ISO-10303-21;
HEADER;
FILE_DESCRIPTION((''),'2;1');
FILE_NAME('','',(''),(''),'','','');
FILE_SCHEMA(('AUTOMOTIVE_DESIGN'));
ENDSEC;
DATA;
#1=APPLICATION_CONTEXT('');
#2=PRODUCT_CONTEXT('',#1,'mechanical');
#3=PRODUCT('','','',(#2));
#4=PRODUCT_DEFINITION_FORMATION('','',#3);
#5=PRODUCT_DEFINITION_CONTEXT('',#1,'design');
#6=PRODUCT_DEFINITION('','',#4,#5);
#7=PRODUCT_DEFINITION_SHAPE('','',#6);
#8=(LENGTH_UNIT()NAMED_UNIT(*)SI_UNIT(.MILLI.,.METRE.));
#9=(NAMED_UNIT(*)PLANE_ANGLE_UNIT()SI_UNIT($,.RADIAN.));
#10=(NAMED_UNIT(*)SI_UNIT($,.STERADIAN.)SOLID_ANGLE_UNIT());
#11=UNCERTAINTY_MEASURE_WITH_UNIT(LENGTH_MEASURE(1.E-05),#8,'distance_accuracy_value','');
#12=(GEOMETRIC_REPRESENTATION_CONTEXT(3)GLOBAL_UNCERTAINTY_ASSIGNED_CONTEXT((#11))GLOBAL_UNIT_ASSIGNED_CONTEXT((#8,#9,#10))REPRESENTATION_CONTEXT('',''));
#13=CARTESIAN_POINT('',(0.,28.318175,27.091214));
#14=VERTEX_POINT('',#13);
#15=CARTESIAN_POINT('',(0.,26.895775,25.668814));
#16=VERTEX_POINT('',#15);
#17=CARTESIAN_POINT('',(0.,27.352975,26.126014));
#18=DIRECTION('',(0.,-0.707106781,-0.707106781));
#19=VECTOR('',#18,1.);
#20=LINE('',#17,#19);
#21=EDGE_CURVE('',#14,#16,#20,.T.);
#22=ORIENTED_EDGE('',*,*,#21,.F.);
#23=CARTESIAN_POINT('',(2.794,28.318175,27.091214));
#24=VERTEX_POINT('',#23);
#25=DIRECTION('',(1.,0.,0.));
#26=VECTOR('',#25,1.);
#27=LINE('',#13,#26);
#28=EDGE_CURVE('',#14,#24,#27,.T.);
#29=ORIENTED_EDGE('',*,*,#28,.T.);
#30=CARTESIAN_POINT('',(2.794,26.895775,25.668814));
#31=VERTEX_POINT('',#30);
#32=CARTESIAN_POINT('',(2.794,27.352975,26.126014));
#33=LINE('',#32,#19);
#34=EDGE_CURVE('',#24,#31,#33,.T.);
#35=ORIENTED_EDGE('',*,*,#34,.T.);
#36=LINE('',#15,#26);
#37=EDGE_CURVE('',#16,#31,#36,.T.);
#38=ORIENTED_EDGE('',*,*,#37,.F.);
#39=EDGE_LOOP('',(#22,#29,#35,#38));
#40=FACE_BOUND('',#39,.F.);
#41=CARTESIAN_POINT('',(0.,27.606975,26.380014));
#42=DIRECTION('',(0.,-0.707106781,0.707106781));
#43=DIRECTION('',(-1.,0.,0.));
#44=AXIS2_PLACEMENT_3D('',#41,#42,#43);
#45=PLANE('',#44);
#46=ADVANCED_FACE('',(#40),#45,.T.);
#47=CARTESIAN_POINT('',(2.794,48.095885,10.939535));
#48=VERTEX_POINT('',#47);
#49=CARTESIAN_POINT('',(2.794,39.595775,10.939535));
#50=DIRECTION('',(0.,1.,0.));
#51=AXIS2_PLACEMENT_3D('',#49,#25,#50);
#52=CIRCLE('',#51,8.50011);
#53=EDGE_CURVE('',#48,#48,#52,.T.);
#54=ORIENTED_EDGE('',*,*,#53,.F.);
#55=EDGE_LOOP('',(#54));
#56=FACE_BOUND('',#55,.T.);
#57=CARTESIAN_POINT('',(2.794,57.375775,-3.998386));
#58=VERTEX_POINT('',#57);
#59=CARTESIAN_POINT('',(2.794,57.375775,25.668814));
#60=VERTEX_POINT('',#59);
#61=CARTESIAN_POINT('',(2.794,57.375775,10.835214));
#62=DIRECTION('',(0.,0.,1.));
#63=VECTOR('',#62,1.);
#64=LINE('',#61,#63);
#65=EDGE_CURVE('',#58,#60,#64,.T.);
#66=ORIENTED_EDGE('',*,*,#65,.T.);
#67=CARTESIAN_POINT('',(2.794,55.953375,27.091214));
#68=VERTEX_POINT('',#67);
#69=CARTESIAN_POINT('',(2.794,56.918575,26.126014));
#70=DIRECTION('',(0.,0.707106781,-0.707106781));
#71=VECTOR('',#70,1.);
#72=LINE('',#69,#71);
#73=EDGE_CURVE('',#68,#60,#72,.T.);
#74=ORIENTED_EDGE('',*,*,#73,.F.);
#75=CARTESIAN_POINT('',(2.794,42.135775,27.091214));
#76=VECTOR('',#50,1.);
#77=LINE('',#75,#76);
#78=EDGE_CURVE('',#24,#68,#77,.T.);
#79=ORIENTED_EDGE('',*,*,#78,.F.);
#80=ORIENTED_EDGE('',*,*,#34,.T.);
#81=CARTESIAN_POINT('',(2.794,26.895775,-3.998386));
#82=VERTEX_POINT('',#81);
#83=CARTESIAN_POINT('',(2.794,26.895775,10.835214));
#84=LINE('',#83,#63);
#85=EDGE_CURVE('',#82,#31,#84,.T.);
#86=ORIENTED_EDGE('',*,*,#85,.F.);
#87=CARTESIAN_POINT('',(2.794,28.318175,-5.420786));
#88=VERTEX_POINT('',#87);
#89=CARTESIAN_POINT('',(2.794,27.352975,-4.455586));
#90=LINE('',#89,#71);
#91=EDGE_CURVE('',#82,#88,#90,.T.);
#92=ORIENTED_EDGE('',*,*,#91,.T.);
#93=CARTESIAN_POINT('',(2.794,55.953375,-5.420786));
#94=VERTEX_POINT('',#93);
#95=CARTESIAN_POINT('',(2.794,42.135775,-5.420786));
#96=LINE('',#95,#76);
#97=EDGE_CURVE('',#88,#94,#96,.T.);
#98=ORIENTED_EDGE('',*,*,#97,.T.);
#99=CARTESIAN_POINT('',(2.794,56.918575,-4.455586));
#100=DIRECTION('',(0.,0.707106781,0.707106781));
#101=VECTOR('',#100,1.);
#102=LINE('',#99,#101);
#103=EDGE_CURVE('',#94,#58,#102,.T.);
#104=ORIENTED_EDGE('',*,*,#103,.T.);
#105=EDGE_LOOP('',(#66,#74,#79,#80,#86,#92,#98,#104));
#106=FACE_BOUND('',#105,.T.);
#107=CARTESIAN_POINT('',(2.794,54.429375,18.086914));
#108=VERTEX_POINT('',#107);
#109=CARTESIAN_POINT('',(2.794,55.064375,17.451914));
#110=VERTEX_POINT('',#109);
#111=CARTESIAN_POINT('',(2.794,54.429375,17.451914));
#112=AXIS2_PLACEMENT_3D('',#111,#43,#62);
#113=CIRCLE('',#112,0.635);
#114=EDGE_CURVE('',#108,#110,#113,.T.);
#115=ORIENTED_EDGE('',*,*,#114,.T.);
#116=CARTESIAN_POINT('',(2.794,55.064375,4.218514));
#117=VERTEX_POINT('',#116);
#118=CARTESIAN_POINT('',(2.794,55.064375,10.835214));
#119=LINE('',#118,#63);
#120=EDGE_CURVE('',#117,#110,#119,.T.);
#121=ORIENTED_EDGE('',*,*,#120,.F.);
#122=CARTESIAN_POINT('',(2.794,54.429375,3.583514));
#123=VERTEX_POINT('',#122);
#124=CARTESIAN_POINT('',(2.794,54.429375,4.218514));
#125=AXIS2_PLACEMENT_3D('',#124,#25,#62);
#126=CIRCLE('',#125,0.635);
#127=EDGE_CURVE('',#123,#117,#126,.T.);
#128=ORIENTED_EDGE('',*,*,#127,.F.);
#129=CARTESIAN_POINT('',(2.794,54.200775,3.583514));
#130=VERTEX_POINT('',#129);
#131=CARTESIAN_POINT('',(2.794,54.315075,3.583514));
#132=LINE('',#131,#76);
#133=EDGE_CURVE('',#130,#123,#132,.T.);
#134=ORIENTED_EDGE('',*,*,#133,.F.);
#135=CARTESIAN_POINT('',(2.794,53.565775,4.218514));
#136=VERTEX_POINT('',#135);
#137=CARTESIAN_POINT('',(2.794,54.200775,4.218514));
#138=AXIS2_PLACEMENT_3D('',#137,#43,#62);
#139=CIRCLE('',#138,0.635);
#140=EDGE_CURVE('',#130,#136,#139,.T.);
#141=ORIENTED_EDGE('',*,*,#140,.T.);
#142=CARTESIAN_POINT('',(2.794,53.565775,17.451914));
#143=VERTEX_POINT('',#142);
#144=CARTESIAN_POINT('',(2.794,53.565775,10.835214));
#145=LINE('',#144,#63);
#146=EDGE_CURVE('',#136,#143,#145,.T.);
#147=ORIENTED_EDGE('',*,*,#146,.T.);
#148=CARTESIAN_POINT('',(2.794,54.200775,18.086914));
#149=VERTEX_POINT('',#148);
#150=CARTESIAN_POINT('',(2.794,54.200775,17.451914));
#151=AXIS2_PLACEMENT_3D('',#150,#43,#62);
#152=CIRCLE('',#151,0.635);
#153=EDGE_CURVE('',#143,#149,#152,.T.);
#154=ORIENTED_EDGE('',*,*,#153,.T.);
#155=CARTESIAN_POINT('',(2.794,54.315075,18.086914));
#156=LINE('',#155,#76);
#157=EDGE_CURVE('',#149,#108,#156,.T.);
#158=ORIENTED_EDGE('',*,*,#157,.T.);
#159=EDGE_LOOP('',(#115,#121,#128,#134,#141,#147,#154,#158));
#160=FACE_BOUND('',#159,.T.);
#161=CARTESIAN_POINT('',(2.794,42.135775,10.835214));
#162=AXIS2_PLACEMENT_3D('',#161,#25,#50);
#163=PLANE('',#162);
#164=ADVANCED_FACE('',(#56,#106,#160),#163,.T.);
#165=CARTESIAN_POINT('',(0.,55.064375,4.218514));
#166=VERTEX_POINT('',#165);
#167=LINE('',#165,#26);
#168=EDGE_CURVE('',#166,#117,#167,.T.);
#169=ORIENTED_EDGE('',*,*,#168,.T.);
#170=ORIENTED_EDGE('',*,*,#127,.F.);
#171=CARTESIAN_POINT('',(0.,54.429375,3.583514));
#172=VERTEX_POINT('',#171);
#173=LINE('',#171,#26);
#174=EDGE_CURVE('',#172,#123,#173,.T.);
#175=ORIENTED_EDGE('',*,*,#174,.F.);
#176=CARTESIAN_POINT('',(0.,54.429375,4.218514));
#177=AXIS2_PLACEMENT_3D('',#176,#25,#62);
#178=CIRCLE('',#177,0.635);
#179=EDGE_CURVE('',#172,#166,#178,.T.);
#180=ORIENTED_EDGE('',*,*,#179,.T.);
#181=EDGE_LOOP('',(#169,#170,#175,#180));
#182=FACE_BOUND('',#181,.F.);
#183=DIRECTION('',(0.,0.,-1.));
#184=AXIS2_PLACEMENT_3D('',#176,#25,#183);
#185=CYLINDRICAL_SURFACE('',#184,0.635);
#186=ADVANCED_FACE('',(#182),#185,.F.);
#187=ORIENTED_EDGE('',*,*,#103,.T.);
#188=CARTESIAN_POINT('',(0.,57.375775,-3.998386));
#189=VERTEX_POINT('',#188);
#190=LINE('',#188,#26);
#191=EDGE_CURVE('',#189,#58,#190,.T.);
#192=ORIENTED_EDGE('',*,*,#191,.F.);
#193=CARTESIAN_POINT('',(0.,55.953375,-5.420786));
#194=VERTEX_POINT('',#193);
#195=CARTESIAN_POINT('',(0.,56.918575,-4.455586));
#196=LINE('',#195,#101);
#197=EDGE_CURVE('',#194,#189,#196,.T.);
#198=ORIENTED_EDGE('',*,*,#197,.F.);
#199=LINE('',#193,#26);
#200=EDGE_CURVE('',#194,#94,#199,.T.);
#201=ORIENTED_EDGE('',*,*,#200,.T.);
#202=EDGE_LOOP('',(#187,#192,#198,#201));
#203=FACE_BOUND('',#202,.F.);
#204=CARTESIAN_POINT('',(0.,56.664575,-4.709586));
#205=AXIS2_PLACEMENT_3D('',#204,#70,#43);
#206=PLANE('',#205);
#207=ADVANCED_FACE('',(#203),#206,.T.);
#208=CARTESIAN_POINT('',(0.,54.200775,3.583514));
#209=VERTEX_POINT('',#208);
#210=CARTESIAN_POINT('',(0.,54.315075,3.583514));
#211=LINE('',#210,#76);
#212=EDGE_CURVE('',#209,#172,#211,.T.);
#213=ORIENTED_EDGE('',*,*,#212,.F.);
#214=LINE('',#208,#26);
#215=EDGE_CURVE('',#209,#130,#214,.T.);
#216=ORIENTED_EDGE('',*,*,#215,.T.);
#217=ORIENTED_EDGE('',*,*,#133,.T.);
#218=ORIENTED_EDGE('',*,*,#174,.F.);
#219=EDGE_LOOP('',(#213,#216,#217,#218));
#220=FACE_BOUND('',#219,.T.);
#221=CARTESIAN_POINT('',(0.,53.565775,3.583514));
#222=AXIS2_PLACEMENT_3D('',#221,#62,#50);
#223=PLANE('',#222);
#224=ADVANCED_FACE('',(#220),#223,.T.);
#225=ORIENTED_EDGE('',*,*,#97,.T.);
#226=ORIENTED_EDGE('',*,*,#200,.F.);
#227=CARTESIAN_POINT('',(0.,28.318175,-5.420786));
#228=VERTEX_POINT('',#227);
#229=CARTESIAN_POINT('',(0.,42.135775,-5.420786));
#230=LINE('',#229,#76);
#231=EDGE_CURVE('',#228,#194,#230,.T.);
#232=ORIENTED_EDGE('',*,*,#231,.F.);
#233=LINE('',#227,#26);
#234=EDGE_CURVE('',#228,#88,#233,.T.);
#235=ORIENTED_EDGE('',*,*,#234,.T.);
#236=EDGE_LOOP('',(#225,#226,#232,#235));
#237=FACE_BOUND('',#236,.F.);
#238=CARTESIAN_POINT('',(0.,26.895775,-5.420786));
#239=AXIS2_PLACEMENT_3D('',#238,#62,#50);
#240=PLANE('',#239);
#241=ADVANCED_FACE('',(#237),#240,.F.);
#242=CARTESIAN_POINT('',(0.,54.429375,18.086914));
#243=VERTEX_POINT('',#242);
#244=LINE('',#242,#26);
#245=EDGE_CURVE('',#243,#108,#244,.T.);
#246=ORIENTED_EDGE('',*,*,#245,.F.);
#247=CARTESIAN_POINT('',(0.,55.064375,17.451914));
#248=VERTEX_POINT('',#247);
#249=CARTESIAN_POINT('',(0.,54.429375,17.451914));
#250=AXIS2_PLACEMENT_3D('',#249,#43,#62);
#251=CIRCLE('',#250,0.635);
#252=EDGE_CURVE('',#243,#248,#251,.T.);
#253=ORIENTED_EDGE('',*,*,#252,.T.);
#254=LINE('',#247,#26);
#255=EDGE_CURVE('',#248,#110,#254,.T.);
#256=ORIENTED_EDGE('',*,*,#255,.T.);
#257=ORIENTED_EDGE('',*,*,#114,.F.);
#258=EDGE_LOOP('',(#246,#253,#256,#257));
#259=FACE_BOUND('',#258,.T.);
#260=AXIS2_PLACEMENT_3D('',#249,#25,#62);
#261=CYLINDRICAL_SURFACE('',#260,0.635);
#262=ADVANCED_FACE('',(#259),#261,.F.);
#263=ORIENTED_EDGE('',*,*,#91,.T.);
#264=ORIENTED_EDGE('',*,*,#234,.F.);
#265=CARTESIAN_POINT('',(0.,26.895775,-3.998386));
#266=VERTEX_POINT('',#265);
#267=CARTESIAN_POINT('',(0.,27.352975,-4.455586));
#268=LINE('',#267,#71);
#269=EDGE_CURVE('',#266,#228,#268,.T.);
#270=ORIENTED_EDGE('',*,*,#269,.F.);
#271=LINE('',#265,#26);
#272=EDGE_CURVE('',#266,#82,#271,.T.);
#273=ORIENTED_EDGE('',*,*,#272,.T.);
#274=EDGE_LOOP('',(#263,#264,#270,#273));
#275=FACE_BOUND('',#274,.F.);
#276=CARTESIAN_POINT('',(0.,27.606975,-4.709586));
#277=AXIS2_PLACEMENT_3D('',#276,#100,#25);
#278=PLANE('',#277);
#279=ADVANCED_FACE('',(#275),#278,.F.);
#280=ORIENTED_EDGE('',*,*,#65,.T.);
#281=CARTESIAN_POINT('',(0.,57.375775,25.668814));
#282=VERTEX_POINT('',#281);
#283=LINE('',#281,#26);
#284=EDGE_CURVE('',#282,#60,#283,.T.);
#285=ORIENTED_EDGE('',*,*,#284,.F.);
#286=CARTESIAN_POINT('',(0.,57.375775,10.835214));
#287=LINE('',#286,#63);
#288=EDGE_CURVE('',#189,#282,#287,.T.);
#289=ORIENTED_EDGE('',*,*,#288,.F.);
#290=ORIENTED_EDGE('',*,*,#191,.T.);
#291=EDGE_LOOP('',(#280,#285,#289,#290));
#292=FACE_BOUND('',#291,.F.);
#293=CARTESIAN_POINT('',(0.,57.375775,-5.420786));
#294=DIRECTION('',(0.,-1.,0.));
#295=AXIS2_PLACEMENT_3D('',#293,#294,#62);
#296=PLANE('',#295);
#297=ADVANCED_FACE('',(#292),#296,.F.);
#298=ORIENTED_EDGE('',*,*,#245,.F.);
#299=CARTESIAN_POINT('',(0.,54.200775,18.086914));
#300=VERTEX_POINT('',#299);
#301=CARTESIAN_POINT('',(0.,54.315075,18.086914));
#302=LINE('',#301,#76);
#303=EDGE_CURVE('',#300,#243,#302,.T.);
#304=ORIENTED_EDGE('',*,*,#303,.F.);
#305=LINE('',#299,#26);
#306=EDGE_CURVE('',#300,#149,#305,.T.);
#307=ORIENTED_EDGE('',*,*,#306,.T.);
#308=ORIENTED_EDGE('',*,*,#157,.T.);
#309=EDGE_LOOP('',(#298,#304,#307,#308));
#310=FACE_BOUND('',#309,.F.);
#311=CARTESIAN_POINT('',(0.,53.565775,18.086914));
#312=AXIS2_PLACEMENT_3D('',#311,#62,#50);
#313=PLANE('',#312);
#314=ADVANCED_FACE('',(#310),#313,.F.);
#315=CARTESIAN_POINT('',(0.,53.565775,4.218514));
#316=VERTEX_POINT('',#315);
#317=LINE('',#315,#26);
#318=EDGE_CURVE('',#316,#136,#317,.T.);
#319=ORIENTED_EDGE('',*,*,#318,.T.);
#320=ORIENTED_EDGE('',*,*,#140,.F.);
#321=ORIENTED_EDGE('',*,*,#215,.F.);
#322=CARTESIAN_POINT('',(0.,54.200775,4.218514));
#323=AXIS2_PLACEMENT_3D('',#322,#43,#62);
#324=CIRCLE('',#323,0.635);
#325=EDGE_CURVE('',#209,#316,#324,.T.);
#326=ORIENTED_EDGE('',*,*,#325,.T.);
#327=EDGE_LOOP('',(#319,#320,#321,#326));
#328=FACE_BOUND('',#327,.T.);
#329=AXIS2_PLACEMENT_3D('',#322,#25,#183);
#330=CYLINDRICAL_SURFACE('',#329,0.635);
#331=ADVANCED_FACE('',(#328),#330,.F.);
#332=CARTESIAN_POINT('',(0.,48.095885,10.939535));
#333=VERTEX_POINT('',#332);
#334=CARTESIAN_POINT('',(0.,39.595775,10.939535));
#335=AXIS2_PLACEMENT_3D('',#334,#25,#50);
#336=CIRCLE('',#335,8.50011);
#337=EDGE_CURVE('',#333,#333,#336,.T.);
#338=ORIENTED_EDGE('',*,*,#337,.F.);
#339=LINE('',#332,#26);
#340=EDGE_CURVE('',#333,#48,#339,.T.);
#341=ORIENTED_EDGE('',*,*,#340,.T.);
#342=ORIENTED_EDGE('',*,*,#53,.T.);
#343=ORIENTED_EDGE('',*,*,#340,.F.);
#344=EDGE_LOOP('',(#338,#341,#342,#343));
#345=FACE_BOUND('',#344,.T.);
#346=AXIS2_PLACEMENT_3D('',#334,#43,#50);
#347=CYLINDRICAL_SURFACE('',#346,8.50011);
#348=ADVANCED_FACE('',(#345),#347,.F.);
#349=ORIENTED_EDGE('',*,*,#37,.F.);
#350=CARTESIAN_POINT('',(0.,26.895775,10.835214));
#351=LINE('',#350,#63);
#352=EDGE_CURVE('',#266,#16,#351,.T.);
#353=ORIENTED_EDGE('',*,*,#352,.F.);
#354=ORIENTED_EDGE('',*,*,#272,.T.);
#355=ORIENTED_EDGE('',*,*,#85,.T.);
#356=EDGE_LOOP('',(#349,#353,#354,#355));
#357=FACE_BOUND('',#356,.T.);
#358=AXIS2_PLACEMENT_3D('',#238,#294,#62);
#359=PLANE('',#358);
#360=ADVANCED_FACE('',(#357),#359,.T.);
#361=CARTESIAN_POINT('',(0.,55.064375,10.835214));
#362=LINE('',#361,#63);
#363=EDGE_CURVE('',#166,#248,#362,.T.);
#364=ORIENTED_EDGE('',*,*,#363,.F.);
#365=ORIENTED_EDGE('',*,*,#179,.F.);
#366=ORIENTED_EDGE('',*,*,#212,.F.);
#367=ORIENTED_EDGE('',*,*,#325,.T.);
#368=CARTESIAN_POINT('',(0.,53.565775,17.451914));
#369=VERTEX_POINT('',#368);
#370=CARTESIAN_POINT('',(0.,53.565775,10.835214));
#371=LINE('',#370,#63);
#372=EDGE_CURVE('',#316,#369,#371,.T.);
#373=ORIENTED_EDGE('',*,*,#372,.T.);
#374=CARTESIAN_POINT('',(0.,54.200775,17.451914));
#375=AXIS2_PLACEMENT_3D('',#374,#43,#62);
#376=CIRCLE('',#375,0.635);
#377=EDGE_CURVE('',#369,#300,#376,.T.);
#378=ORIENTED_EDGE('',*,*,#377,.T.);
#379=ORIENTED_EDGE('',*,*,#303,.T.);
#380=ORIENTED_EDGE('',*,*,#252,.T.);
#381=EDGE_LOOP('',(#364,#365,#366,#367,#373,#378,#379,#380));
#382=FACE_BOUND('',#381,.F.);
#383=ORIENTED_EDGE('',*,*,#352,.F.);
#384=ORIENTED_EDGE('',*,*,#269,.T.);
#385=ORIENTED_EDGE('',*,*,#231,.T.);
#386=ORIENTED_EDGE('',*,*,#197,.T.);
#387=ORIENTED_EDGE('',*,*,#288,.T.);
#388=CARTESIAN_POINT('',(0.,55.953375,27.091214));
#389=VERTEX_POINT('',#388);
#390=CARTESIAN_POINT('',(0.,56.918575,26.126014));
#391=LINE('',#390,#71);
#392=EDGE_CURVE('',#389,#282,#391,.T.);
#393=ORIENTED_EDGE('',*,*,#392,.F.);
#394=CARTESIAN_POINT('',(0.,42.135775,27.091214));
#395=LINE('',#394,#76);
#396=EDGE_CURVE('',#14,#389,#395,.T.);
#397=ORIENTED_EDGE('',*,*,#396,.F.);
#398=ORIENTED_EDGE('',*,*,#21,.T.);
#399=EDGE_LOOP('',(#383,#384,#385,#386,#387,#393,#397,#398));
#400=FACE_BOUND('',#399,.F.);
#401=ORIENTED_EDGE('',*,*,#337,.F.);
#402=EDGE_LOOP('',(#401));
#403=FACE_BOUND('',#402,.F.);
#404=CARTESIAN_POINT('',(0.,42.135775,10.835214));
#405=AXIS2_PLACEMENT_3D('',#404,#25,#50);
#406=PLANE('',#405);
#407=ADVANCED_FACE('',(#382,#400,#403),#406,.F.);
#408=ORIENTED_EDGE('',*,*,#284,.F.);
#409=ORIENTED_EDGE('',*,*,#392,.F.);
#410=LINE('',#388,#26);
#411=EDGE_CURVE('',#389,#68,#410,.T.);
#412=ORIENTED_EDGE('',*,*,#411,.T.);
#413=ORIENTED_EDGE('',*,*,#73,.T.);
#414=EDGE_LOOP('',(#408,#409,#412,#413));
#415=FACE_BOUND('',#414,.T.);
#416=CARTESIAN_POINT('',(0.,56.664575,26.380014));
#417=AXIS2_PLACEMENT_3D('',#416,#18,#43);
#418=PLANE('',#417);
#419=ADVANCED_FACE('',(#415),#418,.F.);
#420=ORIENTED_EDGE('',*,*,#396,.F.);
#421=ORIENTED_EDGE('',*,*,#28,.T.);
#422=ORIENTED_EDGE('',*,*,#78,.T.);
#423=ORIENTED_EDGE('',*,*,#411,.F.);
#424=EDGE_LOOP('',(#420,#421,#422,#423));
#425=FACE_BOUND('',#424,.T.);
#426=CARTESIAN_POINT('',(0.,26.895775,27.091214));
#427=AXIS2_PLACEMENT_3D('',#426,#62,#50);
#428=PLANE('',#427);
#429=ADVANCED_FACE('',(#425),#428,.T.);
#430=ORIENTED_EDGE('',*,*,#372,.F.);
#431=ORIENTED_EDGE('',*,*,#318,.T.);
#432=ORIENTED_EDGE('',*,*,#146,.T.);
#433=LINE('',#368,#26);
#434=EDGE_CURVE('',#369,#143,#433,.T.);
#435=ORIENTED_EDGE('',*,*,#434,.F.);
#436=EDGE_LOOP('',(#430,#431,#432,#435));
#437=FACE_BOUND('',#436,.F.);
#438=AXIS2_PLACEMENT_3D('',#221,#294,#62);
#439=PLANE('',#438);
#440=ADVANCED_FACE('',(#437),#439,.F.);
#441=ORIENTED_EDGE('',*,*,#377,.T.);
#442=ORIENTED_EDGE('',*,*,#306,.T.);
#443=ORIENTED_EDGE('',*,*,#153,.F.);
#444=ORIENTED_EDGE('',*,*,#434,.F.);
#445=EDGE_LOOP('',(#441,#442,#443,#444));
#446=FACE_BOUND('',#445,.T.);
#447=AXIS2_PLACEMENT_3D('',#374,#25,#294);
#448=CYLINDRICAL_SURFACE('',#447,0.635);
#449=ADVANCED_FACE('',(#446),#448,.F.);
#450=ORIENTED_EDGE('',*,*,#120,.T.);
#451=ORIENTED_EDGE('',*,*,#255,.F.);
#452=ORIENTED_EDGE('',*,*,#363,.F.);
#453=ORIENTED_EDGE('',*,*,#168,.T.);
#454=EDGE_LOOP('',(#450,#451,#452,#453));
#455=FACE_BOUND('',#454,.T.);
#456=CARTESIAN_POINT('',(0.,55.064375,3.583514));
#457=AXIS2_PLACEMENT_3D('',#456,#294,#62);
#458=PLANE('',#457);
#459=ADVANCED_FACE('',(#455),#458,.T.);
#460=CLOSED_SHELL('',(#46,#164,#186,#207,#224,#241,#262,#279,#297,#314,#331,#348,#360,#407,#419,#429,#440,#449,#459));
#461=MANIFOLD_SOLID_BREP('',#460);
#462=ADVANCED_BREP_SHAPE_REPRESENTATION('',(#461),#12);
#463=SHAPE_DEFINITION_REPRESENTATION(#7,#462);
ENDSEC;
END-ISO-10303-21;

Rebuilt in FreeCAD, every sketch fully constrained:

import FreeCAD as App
import Part
import Sketcher
Q = App.Units.Quantity


def edges_at(feature, points):
    """Names of the edges that pass closest to the given points."""
    edges = feature.Shape.Edges
    near = lambda p: min(range(len(edges)), key=lambda i: edges[i].distToShape(Part.Vertex(*p))[0])
    return sorted({f"Edge{near(p) + 1}" for p in points})


def add_polygon(sketch, points):
    """Adds a closed chain of lines whose ends are joined by coincident constraints."""
    first, n = sketch.GeometryCount, len(points)
    for a, b in zip(points, points[1:] + points[:1]):
        sketch.addGeometry(Part.LineSegment(App.Vector(*a, 0), App.Vector(*b, 0)), False)
    for i in range(n):
        sketch.addConstraint(Sketcher.Constraint("Coincident", first + i, 2, first + (i + 1) % n, 1))

doc = App.newDocument("Part")
body = doc.addObject("PartDesign::Body", "Body")

sketch1 = body.newObject("Sketcher::SketchObject", "Sketch")
sketch1.AttachmentSupport = (doc.getObject("YZ_Plane"), [""])
sketch1.MapMode = "FlatFace"
add_polygon(sketch1, [(26.9, 27.1), (26.9, -5.4), (57.4, -5.4), (57.4, 27.1)])
add_polygon(sketch1, [(55.1, 3.6), (53.6, 3.6), (53.6, 18.1), (55.1, 18.1)])
sketch1.addGeometry(Part.Circle(App.Vector(39.6, 10.9, 0), App.Vector(0, 0, 1), 8.5), False)
sketch1.addConstraint(Sketcher.Constraint("Vertical", 0))
sketch1.addConstraint(Sketcher.Constraint("Horizontal", 1))
sketch1.addConstraint(Sketcher.Constraint("Vertical", 2))
sketch1.addConstraint(Sketcher.Constraint("Horizontal", 3))
sketch1.addConstraint(Sketcher.Constraint("Horizontal", 4))
sketch1.addConstraint(Sketcher.Constraint("Vertical", 5))
sketch1.addConstraint(Sketcher.Constraint("Horizontal", 6))
sketch1.addConstraint(Sketcher.Constraint("Vertical", 7))
sketch1.addConstraint(Sketcher.Constraint("DistanceX", 1, 1, 1, 2, Q("1.2 in")))
sketch1.addConstraint(Sketcher.Constraint("Diameter", 8, Q("0.6693 in")))
sketch1.addConstraint(Sketcher.Constraint("DistanceY", 0, 2, 0, 1, Q("1.28 in")))
sketch1.addConstraint(Sketcher.Constraint("DistanceX", 0, 2, 8, 3, Q("0.5 in")))
sketch1.addConstraint(Sketcher.Constraint("DistanceX", 4, 2, 4, 1, Q("0.059 in")))
sketch1.addConstraint(Sketcher.Constraint("DistanceY", 5, 1, 5, 2, Q("0.571 in")))
sketch1.addConstraint(Sketcher.Constraint("DistanceX", 4, 2, 1, 2, Q("0.15 in")))
sketch1.addConstraint(Sketcher.Constraint("DistanceY", 1, 2, 4, 2, Q("0.3545 in")))
sketch1.addConstraint(Sketcher.Constraint("DistanceY", 0, 2, 8, 3, Q("16.360321 mm")))
sketch1.addConstraint(Sketcher.Constraint("DistanceX", -1, 1, 8, 3, Q("39.595775 mm")))
sketch1.addConstraint(Sketcher.Constraint("DistanceY", -1, 1, 8, 3, Q("10.939535 mm")))
pad1 = body.newObject("PartDesign::Pad", "Pad")
pad1.Profile = sketch1
pad1.Length = Q("0.11 in")
doc.recompute()

chamfer = body.newObject("PartDesign::Chamfer", "Chamfer")
chamfer.Base = (pad1, edges_at(pad1, [(1.397, 57.376, 27.091)]))
chamfer.Size = Q("0.056 in")
doc.recompute()

chamfer2 = body.newObject("PartDesign::Chamfer", "Chamfer001")
chamfer2.Base = (chamfer, edges_at(chamfer, [(1.397, 26.896, 27.091)]))
chamfer2.Size = Q("0.056 in")
doc.recompute()

chamfer3 = body.newObject("PartDesign::Chamfer", "Chamfer002")
chamfer3.Base = (chamfer2, edges_at(chamfer2, [(1.397, 26.896, -5.421)]))
chamfer3.Size = Q("0.056 in")
doc.recompute()

chamfer4 = body.newObject("PartDesign::Chamfer", "Chamfer003")
chamfer4.Base = (chamfer3, edges_at(chamfer3, [(1.397, 57.376, -5.421)]))
chamfer4.Size = Q("0.056 in")
doc.recompute()

fillet = body.newObject("PartDesign::Fillet", "Fillet")
fillet.Base = (chamfer4, edges_at(chamfer4, [(1.397, 53.566, 3.584)]))
fillet.Radius = Q("0.025 in")
doc.recompute()

fillet2 = body.newObject("PartDesign::Fillet", "Fillet001")
fillet2.Base = (fillet, edges_at(fillet, [(1.397, 55.064, 3.584)]))
fillet2.Radius = Q("0.025 in")
doc.recompute()

fillet3 = body.newObject("PartDesign::Fillet", "Fillet002")
fillet3.Base = (fillet2, edges_at(fillet2, [(1.397, 53.566, 18.087)]))
fillet3.Radius = Q("0.025 in")
doc.recompute()

fillet4 = body.newObject("PartDesign::Fillet", "Fillet003")
fillet4.Base = (fillet3, edges_at(fillet3, [(1.397, 55.064, 18.087)]))
fillet4.Radius = Q("0.025 in")

doc.recompute()
